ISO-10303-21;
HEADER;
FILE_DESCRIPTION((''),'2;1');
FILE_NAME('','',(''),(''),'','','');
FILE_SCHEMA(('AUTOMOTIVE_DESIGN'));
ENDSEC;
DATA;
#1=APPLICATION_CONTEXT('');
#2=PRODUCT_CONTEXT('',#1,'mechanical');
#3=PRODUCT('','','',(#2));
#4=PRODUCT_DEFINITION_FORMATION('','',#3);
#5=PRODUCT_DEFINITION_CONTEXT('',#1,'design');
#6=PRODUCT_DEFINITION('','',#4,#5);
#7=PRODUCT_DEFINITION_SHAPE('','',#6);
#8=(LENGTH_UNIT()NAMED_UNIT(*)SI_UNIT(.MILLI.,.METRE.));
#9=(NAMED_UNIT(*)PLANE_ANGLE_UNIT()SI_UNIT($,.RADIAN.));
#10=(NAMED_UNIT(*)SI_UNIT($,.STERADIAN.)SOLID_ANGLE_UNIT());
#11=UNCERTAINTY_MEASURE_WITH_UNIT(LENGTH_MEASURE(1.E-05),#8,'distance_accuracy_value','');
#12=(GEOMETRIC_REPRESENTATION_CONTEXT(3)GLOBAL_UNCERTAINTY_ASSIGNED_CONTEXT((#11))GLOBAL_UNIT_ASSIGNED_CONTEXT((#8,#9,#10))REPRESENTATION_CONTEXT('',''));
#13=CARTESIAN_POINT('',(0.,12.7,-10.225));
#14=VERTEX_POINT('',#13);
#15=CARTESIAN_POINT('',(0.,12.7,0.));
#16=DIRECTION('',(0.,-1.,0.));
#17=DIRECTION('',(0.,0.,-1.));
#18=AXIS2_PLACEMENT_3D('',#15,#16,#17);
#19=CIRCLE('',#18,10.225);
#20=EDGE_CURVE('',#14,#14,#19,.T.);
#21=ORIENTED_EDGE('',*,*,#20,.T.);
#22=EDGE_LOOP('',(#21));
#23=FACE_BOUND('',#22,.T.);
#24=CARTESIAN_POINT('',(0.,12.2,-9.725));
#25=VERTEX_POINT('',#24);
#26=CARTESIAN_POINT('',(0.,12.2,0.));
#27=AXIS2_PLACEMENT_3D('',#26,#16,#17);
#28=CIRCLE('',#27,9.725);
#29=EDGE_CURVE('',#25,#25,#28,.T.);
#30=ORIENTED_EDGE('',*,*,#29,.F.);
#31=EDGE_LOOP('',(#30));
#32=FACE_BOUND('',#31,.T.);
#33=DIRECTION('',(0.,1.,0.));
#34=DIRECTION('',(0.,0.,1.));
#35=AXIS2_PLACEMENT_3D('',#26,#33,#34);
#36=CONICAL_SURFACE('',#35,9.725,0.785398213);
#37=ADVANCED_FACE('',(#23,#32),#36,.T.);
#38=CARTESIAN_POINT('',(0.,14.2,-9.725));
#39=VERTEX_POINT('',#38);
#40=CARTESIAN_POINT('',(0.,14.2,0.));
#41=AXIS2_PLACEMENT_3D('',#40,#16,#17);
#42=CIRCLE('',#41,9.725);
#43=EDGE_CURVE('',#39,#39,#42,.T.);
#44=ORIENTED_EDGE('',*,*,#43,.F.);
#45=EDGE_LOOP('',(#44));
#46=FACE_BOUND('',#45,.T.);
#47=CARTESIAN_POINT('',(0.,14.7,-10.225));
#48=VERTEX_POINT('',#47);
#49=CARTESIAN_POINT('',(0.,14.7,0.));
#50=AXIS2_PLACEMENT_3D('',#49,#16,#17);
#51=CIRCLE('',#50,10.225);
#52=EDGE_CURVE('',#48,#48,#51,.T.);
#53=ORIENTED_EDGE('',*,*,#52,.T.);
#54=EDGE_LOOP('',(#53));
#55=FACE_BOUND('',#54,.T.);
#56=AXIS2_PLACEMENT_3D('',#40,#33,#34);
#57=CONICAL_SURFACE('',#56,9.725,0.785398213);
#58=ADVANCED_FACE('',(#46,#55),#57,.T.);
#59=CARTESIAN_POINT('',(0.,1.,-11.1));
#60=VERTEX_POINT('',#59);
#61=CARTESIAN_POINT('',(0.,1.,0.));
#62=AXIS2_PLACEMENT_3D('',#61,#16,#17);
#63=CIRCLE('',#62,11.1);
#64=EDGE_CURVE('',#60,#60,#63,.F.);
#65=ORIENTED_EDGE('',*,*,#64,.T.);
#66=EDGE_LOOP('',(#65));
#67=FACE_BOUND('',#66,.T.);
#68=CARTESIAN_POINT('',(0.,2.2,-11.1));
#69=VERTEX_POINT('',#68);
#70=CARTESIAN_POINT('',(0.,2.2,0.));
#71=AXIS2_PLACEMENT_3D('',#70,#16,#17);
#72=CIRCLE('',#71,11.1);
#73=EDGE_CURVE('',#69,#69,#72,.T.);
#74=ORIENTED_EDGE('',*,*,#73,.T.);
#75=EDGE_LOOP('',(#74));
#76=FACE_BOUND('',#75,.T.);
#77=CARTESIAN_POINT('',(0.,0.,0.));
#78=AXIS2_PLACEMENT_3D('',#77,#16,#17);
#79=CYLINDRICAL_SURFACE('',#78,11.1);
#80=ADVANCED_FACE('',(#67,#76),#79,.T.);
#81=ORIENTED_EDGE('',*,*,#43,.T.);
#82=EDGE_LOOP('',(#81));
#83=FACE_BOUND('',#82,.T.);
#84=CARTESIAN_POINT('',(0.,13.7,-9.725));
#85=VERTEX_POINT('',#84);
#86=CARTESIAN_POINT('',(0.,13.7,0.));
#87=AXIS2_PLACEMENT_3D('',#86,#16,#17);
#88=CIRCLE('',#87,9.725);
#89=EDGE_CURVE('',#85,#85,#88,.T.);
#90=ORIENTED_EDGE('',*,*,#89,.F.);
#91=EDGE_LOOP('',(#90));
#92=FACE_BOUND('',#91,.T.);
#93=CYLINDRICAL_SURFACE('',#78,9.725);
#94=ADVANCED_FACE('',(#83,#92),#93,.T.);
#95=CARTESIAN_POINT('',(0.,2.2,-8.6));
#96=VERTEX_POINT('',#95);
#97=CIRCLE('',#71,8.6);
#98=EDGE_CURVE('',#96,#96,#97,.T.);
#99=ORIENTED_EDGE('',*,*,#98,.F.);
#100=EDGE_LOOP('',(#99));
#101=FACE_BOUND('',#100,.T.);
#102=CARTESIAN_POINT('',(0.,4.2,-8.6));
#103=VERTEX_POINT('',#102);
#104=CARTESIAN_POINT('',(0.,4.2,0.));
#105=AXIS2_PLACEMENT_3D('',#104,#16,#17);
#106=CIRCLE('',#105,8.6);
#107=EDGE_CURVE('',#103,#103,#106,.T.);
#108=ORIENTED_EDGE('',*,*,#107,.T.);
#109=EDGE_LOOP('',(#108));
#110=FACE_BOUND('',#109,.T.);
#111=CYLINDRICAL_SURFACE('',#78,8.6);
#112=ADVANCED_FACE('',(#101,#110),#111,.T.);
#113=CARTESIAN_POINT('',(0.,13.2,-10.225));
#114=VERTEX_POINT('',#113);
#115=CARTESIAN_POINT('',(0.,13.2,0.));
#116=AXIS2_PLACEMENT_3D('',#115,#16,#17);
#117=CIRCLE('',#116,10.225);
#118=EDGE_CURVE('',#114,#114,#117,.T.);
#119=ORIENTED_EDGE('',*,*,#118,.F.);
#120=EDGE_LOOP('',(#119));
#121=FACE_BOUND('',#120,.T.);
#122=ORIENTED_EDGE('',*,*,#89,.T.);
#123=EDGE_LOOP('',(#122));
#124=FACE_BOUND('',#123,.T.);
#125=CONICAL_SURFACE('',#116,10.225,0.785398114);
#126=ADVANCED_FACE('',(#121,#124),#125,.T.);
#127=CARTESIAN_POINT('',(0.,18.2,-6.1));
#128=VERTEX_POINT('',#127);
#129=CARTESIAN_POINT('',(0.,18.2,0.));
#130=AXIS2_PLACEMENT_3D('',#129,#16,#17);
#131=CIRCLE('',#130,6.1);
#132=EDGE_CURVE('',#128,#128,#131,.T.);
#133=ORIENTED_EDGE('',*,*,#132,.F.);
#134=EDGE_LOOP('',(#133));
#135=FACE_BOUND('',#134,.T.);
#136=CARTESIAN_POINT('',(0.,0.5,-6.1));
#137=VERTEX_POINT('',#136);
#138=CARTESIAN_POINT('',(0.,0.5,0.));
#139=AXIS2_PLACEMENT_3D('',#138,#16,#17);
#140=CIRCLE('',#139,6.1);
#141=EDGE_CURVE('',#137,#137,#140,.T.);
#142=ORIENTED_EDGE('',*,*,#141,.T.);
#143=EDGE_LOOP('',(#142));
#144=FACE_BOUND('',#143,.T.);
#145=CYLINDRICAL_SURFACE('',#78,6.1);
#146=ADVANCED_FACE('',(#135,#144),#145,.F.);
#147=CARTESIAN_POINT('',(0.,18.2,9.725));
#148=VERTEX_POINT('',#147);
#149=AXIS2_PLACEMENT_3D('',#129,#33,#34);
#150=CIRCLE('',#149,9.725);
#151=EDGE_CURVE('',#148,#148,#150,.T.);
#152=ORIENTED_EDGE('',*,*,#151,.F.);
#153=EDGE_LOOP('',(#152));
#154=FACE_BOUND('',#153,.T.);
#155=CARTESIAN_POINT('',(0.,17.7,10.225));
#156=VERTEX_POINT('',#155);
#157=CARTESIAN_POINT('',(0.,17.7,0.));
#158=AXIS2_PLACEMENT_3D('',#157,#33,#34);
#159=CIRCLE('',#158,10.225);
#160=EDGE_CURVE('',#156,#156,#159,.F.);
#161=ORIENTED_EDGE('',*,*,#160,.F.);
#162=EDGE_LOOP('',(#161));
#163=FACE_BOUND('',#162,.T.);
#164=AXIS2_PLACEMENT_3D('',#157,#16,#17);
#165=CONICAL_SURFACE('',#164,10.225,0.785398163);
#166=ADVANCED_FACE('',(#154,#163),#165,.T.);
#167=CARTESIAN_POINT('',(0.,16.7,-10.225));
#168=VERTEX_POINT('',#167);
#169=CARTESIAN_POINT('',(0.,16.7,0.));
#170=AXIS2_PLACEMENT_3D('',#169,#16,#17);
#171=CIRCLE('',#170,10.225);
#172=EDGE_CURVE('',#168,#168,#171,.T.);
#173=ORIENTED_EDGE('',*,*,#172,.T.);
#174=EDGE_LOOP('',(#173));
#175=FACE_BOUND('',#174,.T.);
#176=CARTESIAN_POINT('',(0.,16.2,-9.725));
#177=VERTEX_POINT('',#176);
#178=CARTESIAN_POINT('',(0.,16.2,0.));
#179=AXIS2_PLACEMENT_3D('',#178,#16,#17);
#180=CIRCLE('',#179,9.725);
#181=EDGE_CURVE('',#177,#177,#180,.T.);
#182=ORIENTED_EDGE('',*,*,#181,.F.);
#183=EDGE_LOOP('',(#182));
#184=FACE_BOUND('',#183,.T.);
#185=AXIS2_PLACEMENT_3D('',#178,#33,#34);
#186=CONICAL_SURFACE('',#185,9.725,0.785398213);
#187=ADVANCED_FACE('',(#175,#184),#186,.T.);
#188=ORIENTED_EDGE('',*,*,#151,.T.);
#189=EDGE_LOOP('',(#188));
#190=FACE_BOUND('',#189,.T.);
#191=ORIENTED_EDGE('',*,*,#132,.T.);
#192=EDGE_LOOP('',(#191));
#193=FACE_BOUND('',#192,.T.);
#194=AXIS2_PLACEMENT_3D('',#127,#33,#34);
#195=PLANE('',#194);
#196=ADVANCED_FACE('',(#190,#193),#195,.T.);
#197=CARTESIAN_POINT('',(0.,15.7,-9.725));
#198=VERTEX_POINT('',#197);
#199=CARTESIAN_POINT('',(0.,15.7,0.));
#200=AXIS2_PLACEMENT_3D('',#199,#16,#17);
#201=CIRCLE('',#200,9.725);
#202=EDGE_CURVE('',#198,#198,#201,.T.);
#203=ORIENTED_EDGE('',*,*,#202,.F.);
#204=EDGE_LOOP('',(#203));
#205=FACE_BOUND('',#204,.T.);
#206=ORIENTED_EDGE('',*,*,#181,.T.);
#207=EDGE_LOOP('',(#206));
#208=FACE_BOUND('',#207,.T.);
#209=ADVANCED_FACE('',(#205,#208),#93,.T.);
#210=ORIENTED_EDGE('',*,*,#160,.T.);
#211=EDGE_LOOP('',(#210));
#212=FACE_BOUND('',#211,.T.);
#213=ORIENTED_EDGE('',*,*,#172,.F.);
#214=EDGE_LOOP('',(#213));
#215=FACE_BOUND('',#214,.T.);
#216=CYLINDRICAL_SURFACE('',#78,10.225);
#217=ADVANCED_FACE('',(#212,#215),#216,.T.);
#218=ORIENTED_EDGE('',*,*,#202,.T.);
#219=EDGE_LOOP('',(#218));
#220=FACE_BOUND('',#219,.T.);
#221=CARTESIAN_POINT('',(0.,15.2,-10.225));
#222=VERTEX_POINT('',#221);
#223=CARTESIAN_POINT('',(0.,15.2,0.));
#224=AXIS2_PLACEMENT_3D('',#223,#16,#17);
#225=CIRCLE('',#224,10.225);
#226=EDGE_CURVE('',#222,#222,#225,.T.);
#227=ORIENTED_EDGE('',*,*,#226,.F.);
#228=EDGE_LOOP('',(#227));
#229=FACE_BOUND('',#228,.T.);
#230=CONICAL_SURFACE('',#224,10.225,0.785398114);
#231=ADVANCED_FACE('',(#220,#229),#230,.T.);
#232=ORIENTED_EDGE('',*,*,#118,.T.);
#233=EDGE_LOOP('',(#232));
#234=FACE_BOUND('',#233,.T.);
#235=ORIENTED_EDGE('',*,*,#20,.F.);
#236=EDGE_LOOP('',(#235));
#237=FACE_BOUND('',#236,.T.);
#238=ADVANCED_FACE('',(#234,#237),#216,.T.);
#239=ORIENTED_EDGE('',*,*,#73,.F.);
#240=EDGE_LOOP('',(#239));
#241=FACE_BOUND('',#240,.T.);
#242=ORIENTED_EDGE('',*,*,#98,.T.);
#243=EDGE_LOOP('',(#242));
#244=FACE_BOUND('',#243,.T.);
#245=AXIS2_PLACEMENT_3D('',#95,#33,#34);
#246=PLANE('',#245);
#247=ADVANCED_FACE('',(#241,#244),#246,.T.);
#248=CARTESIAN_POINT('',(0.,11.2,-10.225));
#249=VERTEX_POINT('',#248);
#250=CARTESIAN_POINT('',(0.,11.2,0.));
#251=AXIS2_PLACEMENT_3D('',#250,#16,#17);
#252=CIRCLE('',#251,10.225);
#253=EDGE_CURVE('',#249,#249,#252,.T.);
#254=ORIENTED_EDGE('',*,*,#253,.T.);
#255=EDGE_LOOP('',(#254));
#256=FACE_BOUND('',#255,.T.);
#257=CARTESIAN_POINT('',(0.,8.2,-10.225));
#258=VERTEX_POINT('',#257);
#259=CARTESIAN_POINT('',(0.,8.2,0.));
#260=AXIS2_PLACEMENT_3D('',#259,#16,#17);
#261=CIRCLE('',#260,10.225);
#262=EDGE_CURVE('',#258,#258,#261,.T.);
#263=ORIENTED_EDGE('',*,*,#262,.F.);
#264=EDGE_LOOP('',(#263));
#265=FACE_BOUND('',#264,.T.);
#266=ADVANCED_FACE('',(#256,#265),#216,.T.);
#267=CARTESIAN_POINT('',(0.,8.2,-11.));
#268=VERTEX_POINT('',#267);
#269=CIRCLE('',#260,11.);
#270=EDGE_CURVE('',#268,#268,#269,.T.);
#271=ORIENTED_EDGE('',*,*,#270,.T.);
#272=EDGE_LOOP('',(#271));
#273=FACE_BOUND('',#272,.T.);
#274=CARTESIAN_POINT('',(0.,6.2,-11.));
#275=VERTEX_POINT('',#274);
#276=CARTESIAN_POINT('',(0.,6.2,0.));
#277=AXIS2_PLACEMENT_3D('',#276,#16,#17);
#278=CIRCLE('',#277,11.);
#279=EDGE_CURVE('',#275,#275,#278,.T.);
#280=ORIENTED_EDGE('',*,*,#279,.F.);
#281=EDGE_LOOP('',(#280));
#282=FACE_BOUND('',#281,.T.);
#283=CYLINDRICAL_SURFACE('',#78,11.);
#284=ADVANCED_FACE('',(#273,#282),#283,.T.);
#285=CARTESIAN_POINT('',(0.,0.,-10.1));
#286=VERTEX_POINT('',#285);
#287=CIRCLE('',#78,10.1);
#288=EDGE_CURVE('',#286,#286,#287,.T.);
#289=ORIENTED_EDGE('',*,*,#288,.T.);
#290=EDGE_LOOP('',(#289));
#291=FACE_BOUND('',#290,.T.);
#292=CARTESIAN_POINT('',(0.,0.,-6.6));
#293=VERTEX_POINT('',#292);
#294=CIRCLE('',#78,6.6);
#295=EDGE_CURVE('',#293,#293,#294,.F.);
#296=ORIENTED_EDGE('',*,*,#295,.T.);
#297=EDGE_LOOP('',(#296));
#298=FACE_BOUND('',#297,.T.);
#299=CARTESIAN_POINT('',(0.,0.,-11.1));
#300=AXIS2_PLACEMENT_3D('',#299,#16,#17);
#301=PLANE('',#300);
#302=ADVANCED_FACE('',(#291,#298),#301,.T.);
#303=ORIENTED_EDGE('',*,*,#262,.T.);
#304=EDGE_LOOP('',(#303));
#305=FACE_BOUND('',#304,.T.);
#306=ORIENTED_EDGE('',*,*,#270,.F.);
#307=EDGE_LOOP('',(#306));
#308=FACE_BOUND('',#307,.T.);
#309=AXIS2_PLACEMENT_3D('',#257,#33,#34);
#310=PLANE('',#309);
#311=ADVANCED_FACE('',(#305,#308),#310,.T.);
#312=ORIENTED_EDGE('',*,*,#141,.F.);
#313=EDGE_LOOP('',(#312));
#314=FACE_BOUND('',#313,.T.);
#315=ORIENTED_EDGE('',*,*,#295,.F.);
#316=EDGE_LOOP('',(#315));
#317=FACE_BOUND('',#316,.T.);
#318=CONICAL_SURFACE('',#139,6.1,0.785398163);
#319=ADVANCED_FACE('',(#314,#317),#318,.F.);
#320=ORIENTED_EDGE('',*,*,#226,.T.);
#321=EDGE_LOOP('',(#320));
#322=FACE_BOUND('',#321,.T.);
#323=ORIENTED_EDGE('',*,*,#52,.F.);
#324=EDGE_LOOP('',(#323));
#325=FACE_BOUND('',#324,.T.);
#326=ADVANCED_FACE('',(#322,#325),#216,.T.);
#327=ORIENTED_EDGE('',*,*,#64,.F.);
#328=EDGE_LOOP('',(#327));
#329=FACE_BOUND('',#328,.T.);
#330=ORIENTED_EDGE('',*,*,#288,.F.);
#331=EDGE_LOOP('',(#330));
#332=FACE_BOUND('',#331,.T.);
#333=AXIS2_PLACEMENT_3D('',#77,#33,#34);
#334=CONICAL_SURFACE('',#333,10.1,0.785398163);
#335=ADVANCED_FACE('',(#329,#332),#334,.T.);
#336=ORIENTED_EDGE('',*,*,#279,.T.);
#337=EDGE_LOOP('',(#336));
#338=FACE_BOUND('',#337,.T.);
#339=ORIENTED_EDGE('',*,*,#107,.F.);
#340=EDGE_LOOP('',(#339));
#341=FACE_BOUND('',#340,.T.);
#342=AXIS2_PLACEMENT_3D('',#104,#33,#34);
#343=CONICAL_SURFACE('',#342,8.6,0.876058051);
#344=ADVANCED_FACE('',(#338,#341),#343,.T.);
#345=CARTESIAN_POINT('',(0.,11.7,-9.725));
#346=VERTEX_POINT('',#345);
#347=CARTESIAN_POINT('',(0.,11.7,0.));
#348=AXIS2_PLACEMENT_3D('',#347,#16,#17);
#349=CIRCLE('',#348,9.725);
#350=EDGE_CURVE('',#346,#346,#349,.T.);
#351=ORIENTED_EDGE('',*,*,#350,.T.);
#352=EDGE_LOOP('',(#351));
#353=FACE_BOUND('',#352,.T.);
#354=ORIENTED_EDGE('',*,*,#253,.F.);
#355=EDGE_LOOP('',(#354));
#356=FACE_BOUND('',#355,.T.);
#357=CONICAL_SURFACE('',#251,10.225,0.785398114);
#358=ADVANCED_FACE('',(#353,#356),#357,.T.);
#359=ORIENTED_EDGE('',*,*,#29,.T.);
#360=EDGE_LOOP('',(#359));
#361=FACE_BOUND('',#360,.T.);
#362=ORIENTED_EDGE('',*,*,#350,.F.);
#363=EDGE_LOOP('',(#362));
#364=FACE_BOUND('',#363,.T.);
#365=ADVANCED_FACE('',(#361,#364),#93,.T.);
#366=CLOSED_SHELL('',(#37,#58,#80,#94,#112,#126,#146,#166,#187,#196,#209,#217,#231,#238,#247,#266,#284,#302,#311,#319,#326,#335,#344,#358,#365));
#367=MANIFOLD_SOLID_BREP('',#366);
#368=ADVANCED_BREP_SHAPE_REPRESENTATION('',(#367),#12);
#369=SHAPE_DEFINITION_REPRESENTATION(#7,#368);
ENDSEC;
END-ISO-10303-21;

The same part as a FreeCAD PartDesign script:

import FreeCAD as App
import Part
import Sketcher
from FreeCAD import Vector
Q = App.Units.Quantity


def edges_at(feature, points):
    """Names of the edges that pass closest to the given points."""
    edges = feature.Shape.Edges
    near = lambda p: min(range(len(edges)), key=lambda i: edges[i].distToShape(Part.Vertex(*p))[0])
    return sorted({f"Edge{near(p) + 1}" for p in points})


def add_polygon(sketch, points):
    """Adds a closed chain of lines whose ends are joined by coincident constraints."""
    first, n = sketch.GeometryCount, len(points)
    for a, b in zip(points, points[1:] + points[:1]):
        sketch.addGeometry(Part.LineSegment(App.Vector(*a, 0), App.Vector(*b, 0)), False)
    for i in range(n):
        sketch.addConstraint(Sketcher.Constraint("Coincident", first + i, 2, first + (i + 1) % n, 1))

doc = App.newDocument("Part")
params = doc.addObject("Spreadsheet::Sheet", "Params")
for row, (alias, value) in enumerate([
    ("sketch1_width", "2 mm"),
    ("sketch1_width2", "3 mm"),
    ("sketch1_height", "5 mm"),
    ("sketch1_width3", "18.2 mm"),
    ("sketch1_width4", "2.2 mm"),
    ("revolution_angle", "360 deg"),
    ("chamfer_size", "1 mm"),
    ("chamfer2_size", "0.5 mm"),
    ("chamfer3_size", "0.5 mm"),
], start=1):
    params.set(f"A{row}", alias)
    params.set(f"B{row}", "=" + value)
    params.setAlias(f"B{row}", alias)

body = doc.addObject("PartDesign::Body", "Body")

# Sketch on YZ plane
sketch1 = body.newObject("Sketcher::SketchObject", "Sketch")
sketch1.AttachmentSupport = (doc.getObject("YZ_Plane"), [""])
sketch1.MapMode = "FlatFace"
add_polygon(sketch1, [(18.2, -6.1), (0, -6.1), (0, -11.1), (2.2, -11.1), (2.2, -8.6), (4.2, -8.6), (6.2, -11), (8.2, -11), (8.2, -10.225), (11.2, -10.225), (11.7, -9.725), (12.2, -9.725), (12.7, -10.225), (13.2, -10.225), (13.7, -9.725), (14.2, -9.725), (14.7, -10.225), (15.2, -10.225), (15.7, -9.725), (16.2, -9.725), (16.7, -10.225), (18.2, -10.225)])  # lines 0-21
sketch1.addConstraint([
    Sketcher.Constraint("Horizontal", 0),
    Sketcher.Constraint("Vertical", 1),
    Sketcher.Constraint("Horizontal", 2),
    Sketcher.Constraint("Vertical", 3),
    Sketcher.Constraint("Horizontal", 4),
    Sketcher.Constraint("Horizontal", 6),
    Sketcher.Constraint("Vertical", 7),
    Sketcher.Constraint("Horizontal", 8),
    Sketcher.Constraint("Horizontal", 10),
    Sketcher.Constraint("Horizontal", 12),
    Sketcher.Constraint("Horizontal", 14),
    Sketcher.Constraint("Horizontal", 16),
    Sketcher.Constraint("Horizontal", 18),
    Sketcher.Constraint("Horizontal", 20),
    Sketcher.Constraint("Vertical", 21),
    Sketcher.Constraint("PointOnObject", 0, 2, -2),
    Sketcher.Constraint("Perpendicular", 9, 11),
    Sketcher.Constraint("Perpendicular", 11, 13),
    Sketcher.Constraint("Perpendicular", 13, 15),
    Sketcher.Constraint("Perpendicular", 15, 17),
    Sketcher.Constraint("Perpendicular", 17, 19),
    Sketcher.Constraint("Horizontal", 8, 2, 11, 2),
    Sketcher.Constraint("Horizontal", 10, 2, 13, 2),
    Sketcher.Constraint("Horizontal", 12, 2, 15, 2),
    Sketcher.Constraint("Horizontal", 14, 2, 17, 2),
    Sketcher.Constraint("Horizontal", 16, 2, 19, 2),
    Sketcher.Constraint("Equal", 4, 6),
    Sketcher.Constraint("Equal", 10, 12),
    Sketcher.Constraint("Equal", 12, 14),
    Sketcher.Constraint("Equal", 14, 16),
    Sketcher.Constraint("Equal", 16, 18),
    Sketcher.Constraint("Equal", 9, 11),
    Sketcher.Constraint("DistanceX", 4, 1, 4, 2, Q("2 mm")),
    Sketcher.Constraint("DistanceX", 8, 1, 8, 2, Q("3 mm")),
    Sketcher.Constraint("DistanceY", 1, 2, 1, 1, Q("5 mm")),
    Sketcher.Constraint("DistanceX", 0, 2, 0, 1, Q("18.2 mm")),
    Sketcher.Constraint("DistanceX", 2, 1, 2, 2, Q("2.2 mm")),
    Sketcher.Constraint("DistanceX", 10, 1, 10, 2, Q("0.5 mm")),
    Sketcher.Constraint("DistanceX", 20, 1, 20, 2, Q("1.5 mm")),
    Sketcher.Constraint("DistanceY", 3, 1, 3, 2, Q("2.5 mm")),
    Sketcher.Constraint("DistanceY", 5, 2, -1, 1, Q("11 mm")),
    Sketcher.Constraint("DistanceX", 4, 2, 5, 2, Q("2 mm")),
    Sketcher.Constraint("DistanceY", 0, 2, -1, 1, Q("6.1 mm")),
    Sketcher.Constraint("DistanceY", 7, 1, 7, 2, Q("0.775 mm")),
])
sketch1.setExpression("Constraints[54]", "Params.sketch1_width")
sketch1.setExpression("Constraints[55]", "Params.sketch1_width2")
sketch1.setExpression("Constraints[56]", "Params.sketch1_height")
sketch1.setExpression("Constraints[57]", "Params.sketch1_width3")
sketch1.setExpression("Constraints[58]", "Params.sketch1_width4")
revolution = body.newObject("PartDesign::Revolution", "Revolution")
revolution.Profile = sketch1
revolution.ReferenceAxis = (sketch1, ["H_Axis"])
revolution.setExpression("Angle", "Params.revolution_angle")
doc.recompute()

chamfer = body.newObject("PartDesign::Chamfer", "Chamfer")
chamfer.Base = (revolution, edges_at(revolution, [(0, 0, 11.1)]))
chamfer.setExpression("Size", "Params.chamfer_size")
doc.recompute()

chamfer2 = body.newObject("PartDesign::Chamfer", "Chamfer001")
chamfer2.Base = (chamfer, edges_at(chamfer, [(0, 18.2, 10.225)]))
chamfer2.setExpression("Size", "Params.chamfer2_size")
doc.recompute()

chamfer3 = body.newObject("PartDesign::Chamfer", "Chamfer002")
chamfer3.Base = (chamfer2, edges_at(chamfer2, [(0, 0, 6.1)]))
chamfer3.setExpression("Size", "Params.chamfer3_size")

doc.recompute()
